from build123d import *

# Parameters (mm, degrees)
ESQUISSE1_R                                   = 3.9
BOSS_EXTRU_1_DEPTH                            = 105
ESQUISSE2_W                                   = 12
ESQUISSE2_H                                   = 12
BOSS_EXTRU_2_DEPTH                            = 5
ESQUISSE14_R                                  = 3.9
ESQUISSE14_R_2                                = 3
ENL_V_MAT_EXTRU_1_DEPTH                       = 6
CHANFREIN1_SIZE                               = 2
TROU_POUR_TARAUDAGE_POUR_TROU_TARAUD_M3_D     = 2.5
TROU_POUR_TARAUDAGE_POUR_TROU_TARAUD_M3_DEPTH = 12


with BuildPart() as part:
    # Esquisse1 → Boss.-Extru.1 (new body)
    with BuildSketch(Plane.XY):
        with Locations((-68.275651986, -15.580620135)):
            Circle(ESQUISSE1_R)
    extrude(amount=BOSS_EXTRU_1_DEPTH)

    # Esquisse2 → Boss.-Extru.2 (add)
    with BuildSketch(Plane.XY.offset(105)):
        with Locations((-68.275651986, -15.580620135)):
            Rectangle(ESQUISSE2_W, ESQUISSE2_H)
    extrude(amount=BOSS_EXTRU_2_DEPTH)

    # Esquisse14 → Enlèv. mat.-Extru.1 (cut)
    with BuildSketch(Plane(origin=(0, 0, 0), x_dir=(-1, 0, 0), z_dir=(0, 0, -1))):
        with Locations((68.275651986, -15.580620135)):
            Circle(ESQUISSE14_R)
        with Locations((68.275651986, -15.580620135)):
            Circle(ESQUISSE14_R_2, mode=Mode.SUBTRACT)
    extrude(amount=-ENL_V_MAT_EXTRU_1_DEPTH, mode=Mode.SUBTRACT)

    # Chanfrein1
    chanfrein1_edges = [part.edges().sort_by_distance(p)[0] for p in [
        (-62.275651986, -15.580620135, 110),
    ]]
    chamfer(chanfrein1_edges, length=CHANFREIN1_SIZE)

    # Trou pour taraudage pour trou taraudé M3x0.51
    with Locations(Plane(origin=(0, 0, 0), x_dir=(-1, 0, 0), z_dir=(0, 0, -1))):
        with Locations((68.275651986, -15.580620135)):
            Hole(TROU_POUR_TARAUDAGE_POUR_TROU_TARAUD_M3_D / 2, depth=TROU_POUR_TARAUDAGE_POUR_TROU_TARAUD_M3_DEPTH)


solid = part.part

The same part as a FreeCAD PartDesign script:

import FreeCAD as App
import Part
import Sketcher
Q = App.Units.Quantity


def edges_at(feature, points):
    """Names of the edges that pass closest to the given points."""
    edges = feature.Shape.Edges
    near = lambda p: min(range(len(edges)), key=lambda i: edges[i].distToShape(Part.Vertex(*p))[0])
    return sorted({f"Edge{near(p) + 1}" for p in points})

doc = App.newDocument("Part")
body = doc.addObject("PartDesign::Body", "Body")

# Sketch on XY plane
sketch1 = doc.addObject("Sketcher::SketchObject", "Sketch")
body.addObject(sketch1)
sketch1.AttachmentSupport = (doc.XY_Plane, [""])
sketch1.MapMode = "FlatFace"
sketch1.addGeometry(Part.Circle(App.Vector(-68.3, -15.6, 0), App.Vector(0, 0, 1), 3.9), False)
sketch1.addConstraint([
    Sketcher.Constraint("Diameter", 0, Q("7.8 mm")),
    Sketcher.Constraint("DistanceX", 0, 3, -1, 1, Q("68.275652 mm")),
    Sketcher.Constraint("DistanceY", 0, 3, -1, 1, Q("15.58062 mm")),
])
pad1 = doc.addObject("PartDesign::Pad", "Pad")
body.addObject(pad1)
pad1.Profile = sketch1
pad1.Length = 105

# Sketch on XY plane
sketch2 = doc.addObject("Sketcher::SketchObject", "Sketch001")
body.addObject(sketch2)
sketch2.AttachmentSupport = (doc.XY_Plane, [""])
sketch2.MapMode = "FlatFace"
sketch2.AttachmentOffset = App.Placement(App.Vector(0, 0, 105), App.Rotation())
sketch2.addGeometry([
    Part.LineSegment(App.Vector(-74, -10, 0), App.Vector(-74, -22, 0)),
    Part.LineSegment(App.Vector(-74, -22, 0), App.Vector(-62, -22, 0)),
    Part.LineSegment(App.Vector(-62, -22, 0), App.Vector(-62, -10, 0)),
    Part.LineSegment(App.Vector(-62, -10, 0), App.Vector(-74, -10, 0)),
], False)
sketch2.addConstraint([
    Sketcher.Constraint("Coincident", 0, 2, 1, 1),
    Sketcher.Constraint("Coincident", 1, 2, 2, 1),
    Sketcher.Constraint("Coincident", 2, 2, 3, 1),
    Sketcher.Constraint("Coincident", 3, 2, 0, 1),
    Sketcher.Constraint("Vertical", 0),
    Sketcher.Constraint("Horizontal", 1),
    Sketcher.Constraint("Vertical", 2),
    Sketcher.Constraint("Horizontal", 3),
    Sketcher.Constraint("Equal", 3, 0),
    Sketcher.Constraint("DistanceX", 1, 1, 1, 2, Q("12 mm")),
    Sketcher.Constraint("DistanceX", 0, 2, -1, 1, Q("74.275652 mm")),
    Sketcher.Constraint("DistanceY", 0, 2, -1, 1, Q("21.58062 mm")),
])
pad2 = doc.addObject("PartDesign::Pad", "Pad001")
body.addObject(pad2)
pad2.Profile = sketch2
pad2.Length = 5

# Sketch on XY plane
sketch3 = doc.addObject("Sketcher::SketchObject", "Sketch002")
body.addObject(sketch3)
sketch3.AttachmentSupport = (doc.XY_Plane, [""])
sketch3.MapMode = "FlatFace"
sketch3.addGeometry([
    Part.Circle(App.Vector(-68.3, -15.6, 0), App.Vector(0, 0, 1), 3.9),
    Part.Circle(App.Vector(-68.3, -15.6, 0), App.Vector(0, 0, 1), 3),
], False)
sketch3.addConstraint([
    Sketcher.Constraint("Coincident", 1, 3, 0, 3),
    Sketcher.Constraint("Diameter", 1, Q("6 mm")),
    Sketcher.Constraint("Diameter", 0, Q("7.8 mm")),
    Sketcher.Constraint("DistanceX", 0, 3, -1, 1, Q("68.275652 mm")),
    Sketcher.Constraint("DistanceY", 0, 3, -1, 1, Q("15.58062 mm")),
])
pocket1 = doc.addObject("PartDesign::Pocket", "Pocket")
body.addObject(pocket1)
pocket1.Profile = sketch3
pocket1.Length = 6
pocket1.Reversed = True
doc.recompute()

chamfer = doc.addObject("PartDesign::Chamfer", "Chamfer")
body.addObject(chamfer)
chamfer.Base = (pocket1, edges_at(pocket1, [(-62.276, -15.581, 110)]))
chamfer.Size = 2

# Sketch on XY plane
sketch4 = doc.addObject("Sketcher::SketchObject", "Sketch003")
body.addObject(sketch4)
sketch4.AttachmentSupport = (doc.XY_Plane, [""])
sketch4.MapMode = "FlatFace"
sketch4.addGeometry(Part.Circle(App.Vector(-68.3, -15.6, 0), App.Vector(0, 0, 1), 1.2), False)
sketch4.addConstraint([
    Sketcher.Constraint("Diameter", 0, Q("2.5 mm")),
    Sketcher.Constraint("DistanceX", 0, 3, -1, 1, Q("68.275652 mm")),
    Sketcher.Constraint("DistanceY", 0, 3, -1, 1, Q("15.58062 mm")),
])
doc.recompute()
hole = doc.addObject("PartDesign::Hole", "Hole")
body.addObject(hole)
hole.Profile = sketch4
hole.ThreadType = "None"
hole.Diameter = 2.5
hole.DepthType = "Dimension"
hole.Depth = 12
hole.DrillPoint = "Flat"
hole.Reversed = True

doc.recompute()
